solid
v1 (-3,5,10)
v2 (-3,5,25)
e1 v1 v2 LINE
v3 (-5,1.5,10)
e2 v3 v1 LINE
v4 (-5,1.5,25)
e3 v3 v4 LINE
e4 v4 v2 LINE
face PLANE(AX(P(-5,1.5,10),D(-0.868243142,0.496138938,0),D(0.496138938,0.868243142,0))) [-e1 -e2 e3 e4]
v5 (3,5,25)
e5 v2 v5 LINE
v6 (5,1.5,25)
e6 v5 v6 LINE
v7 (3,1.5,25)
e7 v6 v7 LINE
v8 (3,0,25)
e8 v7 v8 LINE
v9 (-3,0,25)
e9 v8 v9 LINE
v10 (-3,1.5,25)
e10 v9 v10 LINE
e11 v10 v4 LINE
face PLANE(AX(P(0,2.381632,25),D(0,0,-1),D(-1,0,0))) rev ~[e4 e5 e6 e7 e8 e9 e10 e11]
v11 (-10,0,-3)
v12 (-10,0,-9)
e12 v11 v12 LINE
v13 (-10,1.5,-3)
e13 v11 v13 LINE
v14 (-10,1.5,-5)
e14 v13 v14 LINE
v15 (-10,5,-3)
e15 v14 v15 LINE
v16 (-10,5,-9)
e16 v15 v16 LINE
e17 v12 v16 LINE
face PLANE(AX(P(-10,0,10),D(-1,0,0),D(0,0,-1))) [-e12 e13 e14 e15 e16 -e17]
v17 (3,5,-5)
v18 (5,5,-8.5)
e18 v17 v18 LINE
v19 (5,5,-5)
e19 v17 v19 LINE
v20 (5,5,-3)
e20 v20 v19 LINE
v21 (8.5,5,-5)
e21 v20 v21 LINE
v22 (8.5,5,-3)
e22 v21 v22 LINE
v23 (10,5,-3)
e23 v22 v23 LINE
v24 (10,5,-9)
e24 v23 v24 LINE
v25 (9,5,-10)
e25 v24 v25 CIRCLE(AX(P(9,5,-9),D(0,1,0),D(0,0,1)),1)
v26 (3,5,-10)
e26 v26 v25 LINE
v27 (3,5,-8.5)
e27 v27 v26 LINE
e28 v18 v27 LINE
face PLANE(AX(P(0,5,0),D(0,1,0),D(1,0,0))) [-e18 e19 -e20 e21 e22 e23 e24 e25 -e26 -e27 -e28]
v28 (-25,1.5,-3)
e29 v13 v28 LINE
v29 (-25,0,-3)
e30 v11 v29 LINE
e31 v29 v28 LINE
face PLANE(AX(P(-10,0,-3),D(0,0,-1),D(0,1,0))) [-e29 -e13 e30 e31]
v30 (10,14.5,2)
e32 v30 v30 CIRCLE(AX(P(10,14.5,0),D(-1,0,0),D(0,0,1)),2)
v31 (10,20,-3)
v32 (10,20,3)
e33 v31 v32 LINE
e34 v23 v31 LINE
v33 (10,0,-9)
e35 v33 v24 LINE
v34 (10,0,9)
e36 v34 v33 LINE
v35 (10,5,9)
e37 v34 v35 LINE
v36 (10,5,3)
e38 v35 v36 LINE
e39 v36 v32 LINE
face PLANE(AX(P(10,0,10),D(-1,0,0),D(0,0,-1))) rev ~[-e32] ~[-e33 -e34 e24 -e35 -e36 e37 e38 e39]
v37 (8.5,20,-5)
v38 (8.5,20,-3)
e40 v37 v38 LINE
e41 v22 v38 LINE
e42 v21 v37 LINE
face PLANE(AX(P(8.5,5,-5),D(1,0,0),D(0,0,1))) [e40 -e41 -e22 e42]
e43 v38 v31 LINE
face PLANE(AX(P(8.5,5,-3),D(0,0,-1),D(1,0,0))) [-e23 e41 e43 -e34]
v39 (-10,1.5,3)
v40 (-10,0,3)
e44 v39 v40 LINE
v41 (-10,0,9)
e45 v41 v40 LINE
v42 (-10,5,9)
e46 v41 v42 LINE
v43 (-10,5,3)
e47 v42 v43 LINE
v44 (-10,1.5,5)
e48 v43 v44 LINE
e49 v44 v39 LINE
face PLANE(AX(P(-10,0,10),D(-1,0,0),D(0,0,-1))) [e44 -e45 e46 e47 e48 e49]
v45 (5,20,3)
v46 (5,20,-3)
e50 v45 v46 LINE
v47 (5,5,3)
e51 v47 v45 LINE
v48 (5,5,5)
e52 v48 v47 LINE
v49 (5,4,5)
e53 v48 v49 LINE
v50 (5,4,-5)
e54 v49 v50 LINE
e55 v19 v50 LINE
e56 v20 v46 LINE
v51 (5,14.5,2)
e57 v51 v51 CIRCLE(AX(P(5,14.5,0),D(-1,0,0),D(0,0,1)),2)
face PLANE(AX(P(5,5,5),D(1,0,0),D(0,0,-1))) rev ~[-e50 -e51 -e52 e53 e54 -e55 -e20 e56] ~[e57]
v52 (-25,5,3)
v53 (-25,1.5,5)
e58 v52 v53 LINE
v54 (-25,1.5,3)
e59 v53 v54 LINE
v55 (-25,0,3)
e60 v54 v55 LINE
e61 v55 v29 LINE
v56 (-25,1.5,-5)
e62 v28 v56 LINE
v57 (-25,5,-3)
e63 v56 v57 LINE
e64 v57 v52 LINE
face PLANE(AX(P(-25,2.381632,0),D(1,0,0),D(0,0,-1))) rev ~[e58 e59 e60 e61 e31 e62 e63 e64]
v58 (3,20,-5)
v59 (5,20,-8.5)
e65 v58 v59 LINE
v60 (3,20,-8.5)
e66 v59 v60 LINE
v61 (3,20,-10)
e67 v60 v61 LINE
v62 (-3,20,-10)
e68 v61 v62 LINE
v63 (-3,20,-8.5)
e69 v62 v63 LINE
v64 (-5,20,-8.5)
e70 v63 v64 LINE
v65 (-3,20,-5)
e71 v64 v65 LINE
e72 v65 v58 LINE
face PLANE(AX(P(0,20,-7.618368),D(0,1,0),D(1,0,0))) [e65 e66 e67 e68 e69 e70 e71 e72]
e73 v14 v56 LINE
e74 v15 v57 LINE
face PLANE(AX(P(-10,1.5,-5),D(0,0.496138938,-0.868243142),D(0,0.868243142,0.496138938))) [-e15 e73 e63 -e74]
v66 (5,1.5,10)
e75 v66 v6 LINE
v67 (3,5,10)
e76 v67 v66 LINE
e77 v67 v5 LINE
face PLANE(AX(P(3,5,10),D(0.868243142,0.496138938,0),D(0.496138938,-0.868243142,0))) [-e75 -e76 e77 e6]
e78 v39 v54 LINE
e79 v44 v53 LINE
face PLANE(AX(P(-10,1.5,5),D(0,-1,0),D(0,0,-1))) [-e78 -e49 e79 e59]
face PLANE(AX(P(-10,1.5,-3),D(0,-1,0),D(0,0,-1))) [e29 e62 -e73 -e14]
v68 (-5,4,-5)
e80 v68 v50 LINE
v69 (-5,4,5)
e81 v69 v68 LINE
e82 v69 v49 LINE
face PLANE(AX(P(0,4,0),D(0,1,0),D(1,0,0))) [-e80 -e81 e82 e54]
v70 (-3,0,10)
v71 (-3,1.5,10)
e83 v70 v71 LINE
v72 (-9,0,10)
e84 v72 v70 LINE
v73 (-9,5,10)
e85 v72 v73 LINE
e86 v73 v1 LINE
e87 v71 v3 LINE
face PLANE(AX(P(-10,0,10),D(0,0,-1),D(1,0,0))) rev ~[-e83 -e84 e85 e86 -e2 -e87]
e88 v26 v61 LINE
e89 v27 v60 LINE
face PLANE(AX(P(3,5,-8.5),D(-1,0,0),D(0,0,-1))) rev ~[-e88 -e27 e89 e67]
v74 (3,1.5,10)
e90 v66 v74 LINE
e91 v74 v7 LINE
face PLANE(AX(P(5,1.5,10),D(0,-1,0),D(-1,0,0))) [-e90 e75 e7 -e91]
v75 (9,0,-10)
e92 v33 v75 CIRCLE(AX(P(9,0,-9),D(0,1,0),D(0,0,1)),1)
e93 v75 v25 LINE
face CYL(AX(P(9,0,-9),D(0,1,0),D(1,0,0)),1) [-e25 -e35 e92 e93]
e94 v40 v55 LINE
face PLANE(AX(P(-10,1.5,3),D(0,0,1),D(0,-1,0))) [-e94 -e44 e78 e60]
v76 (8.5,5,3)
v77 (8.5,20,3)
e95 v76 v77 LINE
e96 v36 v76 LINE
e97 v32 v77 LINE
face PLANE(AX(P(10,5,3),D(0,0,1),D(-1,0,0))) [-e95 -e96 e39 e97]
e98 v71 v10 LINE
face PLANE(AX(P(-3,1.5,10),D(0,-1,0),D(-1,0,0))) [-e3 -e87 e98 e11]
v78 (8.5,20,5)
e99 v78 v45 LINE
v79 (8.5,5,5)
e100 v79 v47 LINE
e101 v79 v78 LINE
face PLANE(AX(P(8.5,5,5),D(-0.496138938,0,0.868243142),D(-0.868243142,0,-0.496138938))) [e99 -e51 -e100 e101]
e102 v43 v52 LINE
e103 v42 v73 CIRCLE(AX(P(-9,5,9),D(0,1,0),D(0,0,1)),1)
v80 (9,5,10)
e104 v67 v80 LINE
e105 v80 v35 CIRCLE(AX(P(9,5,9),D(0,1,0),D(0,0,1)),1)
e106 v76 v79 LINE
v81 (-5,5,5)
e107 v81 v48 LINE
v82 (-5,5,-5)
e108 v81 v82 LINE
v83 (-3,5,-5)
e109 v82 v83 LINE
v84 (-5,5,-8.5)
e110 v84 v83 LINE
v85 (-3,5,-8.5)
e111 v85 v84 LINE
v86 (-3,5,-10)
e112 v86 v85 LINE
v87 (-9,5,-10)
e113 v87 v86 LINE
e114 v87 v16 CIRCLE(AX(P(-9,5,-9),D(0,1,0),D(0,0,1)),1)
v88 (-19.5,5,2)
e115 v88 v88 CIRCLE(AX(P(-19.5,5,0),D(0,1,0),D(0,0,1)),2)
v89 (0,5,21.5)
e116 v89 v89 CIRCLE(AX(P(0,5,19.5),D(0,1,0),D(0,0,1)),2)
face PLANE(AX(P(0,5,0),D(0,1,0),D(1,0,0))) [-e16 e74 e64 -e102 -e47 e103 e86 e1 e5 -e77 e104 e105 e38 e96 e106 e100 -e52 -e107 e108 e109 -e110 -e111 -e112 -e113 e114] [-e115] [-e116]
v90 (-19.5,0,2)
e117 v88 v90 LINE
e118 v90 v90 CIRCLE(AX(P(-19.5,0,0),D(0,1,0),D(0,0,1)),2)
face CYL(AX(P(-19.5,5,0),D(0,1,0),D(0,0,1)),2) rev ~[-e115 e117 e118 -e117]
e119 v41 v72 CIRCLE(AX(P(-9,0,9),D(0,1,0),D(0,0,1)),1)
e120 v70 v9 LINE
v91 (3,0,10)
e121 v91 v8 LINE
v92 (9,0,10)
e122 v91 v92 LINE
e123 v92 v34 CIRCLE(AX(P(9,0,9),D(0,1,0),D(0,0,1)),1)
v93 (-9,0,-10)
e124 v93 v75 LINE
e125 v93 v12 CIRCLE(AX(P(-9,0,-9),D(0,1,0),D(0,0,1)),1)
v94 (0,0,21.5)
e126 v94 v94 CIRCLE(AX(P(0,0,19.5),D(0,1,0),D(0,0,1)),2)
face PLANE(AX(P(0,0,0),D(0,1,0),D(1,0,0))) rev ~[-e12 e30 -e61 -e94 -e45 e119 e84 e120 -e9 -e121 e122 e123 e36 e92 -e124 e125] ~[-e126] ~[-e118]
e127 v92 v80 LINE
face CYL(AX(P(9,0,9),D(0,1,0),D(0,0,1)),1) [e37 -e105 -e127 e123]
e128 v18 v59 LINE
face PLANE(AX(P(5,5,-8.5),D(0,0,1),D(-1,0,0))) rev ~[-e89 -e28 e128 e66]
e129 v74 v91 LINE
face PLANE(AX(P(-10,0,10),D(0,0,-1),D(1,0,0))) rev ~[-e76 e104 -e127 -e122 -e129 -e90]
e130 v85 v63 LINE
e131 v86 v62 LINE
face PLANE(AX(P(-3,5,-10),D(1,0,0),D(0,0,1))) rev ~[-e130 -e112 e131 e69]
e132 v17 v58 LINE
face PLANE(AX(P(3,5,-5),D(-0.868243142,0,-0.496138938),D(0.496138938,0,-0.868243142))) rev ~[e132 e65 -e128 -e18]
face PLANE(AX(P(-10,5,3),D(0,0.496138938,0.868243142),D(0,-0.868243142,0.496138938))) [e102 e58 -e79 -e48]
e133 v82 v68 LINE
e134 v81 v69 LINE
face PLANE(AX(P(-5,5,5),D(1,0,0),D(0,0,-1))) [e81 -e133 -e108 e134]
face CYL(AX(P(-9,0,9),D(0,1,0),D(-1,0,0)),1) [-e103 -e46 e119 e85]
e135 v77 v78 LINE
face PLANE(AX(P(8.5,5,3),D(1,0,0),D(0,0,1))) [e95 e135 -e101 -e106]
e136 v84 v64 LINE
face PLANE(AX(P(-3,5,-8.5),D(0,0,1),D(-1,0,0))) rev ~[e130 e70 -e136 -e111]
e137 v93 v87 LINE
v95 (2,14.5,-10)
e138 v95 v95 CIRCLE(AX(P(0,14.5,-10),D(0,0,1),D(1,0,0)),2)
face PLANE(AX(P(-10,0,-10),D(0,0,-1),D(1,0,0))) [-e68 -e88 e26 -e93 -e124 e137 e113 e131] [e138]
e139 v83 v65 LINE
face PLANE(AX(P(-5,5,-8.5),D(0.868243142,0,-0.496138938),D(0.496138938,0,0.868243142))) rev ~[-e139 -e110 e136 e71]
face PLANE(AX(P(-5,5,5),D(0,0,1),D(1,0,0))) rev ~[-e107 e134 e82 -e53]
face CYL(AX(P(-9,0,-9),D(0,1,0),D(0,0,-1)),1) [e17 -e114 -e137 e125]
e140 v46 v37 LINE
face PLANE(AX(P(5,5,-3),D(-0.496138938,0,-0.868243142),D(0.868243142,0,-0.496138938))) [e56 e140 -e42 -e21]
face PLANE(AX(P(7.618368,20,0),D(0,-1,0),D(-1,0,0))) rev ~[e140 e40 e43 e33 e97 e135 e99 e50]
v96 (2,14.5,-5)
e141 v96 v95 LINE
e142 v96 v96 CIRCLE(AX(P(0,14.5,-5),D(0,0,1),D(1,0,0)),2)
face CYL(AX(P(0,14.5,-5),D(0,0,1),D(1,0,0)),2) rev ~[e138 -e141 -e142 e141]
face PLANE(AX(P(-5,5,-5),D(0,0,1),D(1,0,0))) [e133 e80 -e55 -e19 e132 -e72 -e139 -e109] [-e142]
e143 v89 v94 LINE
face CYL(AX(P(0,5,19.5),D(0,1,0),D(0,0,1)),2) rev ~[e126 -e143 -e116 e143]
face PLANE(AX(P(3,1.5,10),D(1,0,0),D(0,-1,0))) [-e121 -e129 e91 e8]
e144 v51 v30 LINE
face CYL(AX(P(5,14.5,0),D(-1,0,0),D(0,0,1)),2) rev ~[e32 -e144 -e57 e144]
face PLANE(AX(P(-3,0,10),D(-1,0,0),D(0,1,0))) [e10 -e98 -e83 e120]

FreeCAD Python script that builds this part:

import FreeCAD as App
import Part
import Sketcher

V = App.Vector


def edges_at(feature, points):
    """Names of the edges that pass closest to the given points."""
    edges = feature.Shape.Edges
    near = lambda p: min(range(len(edges)), key=lambda i: edges[i].distToShape(Part.Vertex(*p))[0])
    return sorted({f"Edge{near(p) + 1}" for p in points})

doc = App.newDocument("Part")
body = doc.addObject("PartDesign::Body", "Body")

# Sketch on XZ plane
sketch1 = body.newObject("Sketcher::SketchObject", "Sketch")
sketch1.AttachmentSupport = (doc.getObject("XZ_Plane"), [""])
sketch1.MapMode = "FlatFace"
sketch1.addGeometry([
    Part.LineSegment(V(-10, -10, 0), V(-10, 10, 0)),
    Part.LineSegment(V(-10, 10, 0), V(10, 10, 0)),
    Part.LineSegment(V(10, 10, 0), V(10, -10, 0)),
    Part.LineSegment(V(10, -10, 0), V(-10, -10, 0)),
], False)
sketch1.addConstraint([
    Sketcher.Constraint("Coincident", 0, 2, 1, 1),
    Sketcher.Constraint("Coincident", 1, 2, 2, 1),
    Sketcher.Constraint("Coincident", 2, 2, 3, 1),
    Sketcher.Constraint("Coincident", 3, 2, 0, 1),
    Sketcher.Constraint("Vertical", 0),
    Sketcher.Constraint("Horizontal", 1),
    Sketcher.Constraint("Vertical", 2),
    Sketcher.Constraint("Horizontal", 3),
    Sketcher.Constraint("Symmetric", 0, 2, 2, 2, -1, 1),
    Sketcher.Constraint("Equal", 3, 0),
    Sketcher.Constraint("DistanceX", 1, 1, 1, 2, 20.0),
])
pad1 = body.newObject("PartDesign::Pad", "Pad")
pad1.Profile = sketch1
pad1.Length = 5
pad1.Reversed = True

# Sketch on XY plane
sketch2 = body.newObject("Sketcher::SketchObject", "Sketch001")
sketch2.AttachmentSupport = (doc.getObject("XY_Plane"), [""])
sketch2.MapMode = "FlatFace"
sketch2.AttachmentOffset = App.Placement(V(0, 0, 10), App.Rotation())
sketch2.addGeometry([
    Part.LineSegment(V(3, 5, 0), V(-3, 5, 0)),  # 0
    Part.LineSegment(V(-3, 5, 0), V(-5, 1.5, 0)),  # 1
    Part.LineSegment(V(-5, 1.5, 0), V(-3, 1.5, 0)),  # 2
    Part.LineSegment(V(-3, 1.5, 0), V(-3, 0, 0)),  # 3
    Part.LineSegment(V(-3, 0, 0), V(3, 0, 0)),  # 4
    Part.LineSegment(V(3, 0, 0), V(3, 1.5, 0)),  # 5
    Part.LineSegment(V(3, 1.5, 0), V(5, 1.5, 0)),  # 6
    Part.LineSegment(V(5, 1.5, 0), V(3, 5, 0)),  # 7
], False)
sketch2.addConstraint([
    Sketcher.Constraint("Coincident", 0, 2, 1, 1),
    Sketcher.Constraint("Coincident", 1, 2, 2, 1),
    Sketcher.Constraint("Coincident", 2, 2, 3, 1),
    Sketcher.Constraint("Coincident", 3, 2, 4, 1),
    Sketcher.Constraint("Coincident", 4, 2, 5, 1),
    Sketcher.Constraint("Coincident", 5, 2, 6, 1),
    Sketcher.Constraint("Coincident", 6, 2, 7, 1),
    Sketcher.Constraint("Coincident", 7, 2, 0, 1),
    Sketcher.Constraint("Horizontal", 0),
    Sketcher.Constraint("Horizontal", 2),
    Sketcher.Constraint("Vertical", 3),
    Sketcher.Constraint("Horizontal", 4),
    Sketcher.Constraint("Vertical", 5),
    Sketcher.Constraint("Horizontal", 6),
    Sketcher.Constraint("Symmetric", 3, 2, 4, 2, -1, 1),
    Sketcher.Constraint("Symmetric", 1, 2, 6, 2, -2),
    Sketcher.Constraint("Vertical", 0, 2, 2, 2),
    Sketcher.Constraint("Vertical", 5, 2, 7, 2),
    Sketcher.Constraint("DistanceX", 0, 2, 0, 1, 6.0),
    Sketcher.Constraint("DistanceX", 2, 1, 2, 2, 2.0),
    Sketcher.Constraint("DistanceY", 3, 2, 3, 1, 1.5),
    Sketcher.Constraint("DistanceY", -1, 1, 0, 2, 5.0),
])
pad2 = body.newObject("PartDesign::Pad", "Pad001")
pad2.Profile = sketch2
pad2.Length = 15

# Sketch on YZ plane
sketch3 = body.newObject("Sketcher::SketchObject", "Sketch002")
sketch3.AttachmentSupport = (doc.getObject("YZ_Plane"), [""])
sketch3.MapMode = "FlatFace"
sketch3.AttachmentOffset = App.Placement(V(0, 0, -10), App.Rotation())
sketch3.addGeometry([
    Part.LineSegment(V(5, 3, 0), V(5, -3, 0)),  # 0
    Part.LineSegment(V(5, -3, 0), V(1.5, -5, 0)),  # 1
    Part.LineSegment(V(1.5, -5, 0), V(1.5, -3, 0)),  # 2
    Part.LineSegment(V(1.5, -3, 0), V(0, -3, 0)),  # 3
    Part.LineSegment(V(0, -3, 0), V(0, 3, 0)),  # 4
    Part.LineSegment(V(0, 3, 0), V(1.5, 3, 0)),  # 5
    Part.LineSegment(V(1.5, 3, 0), V(1.5, 5, 0)),  # 6
    Part.LineSegment(V(1.5, 5, 0), V(5, 3, 0)),  # 7
], False)
sketch3.addConstraint([
    Sketcher.Constraint("Coincident", 0, 2, 1, 1),
    Sketcher.Constraint("Coincident", 1, 2, 2, 1),
    Sketcher.Constraint("Coincident", 2, 2, 3, 1),
    Sketcher.Constraint("Coincident", 3, 2, 4, 1),
    Sketcher.Constraint("Coincident", 4, 2, 5, 1),
    Sketcher.Constraint("Coincident", 5, 2, 6, 1),
    Sketcher.Constraint("Coincident", 6, 2, 7, 1),
    Sketcher.Constraint("Coincident", 7, 2, 0, 1),
    Sketcher.Constraint("Vertical", 0),
    Sketcher.Constraint("Vertical", 2),
    Sketcher.Constraint("Horizontal", 3),
    Sketcher.Constraint("Vertical", 4),
    Sketcher.Constraint("Horizontal", 5),
    Sketcher.Constraint("Vertical", 6),
    Sketcher.Constraint("Symmetric", 3, 2, 4, 2, -1, 1),
    Sketcher.Constraint("Symmetric", 1, 2, 6, 2, -1),
    Sketcher.Constraint("Horizontal", 0, 2, 2, 2),
    Sketcher.Constraint("Horizontal", 5, 2, 7, 2),
    Sketcher.Constraint("DistanceY", 0, 2, 0, 1, 6.0),
    Sketcher.Constraint("DistanceY", 2, 1, 2, 2, 2.0),
    Sketcher.Constraint("DistanceX", 3, 2, 3, 1, 1.5),
    Sketcher.Constraint("DistanceX", -1, 1, 0, 2, 5.0),
])
pad3 = body.newObject("PartDesign::Pad", "Pad002")
pad3.Profile = sketch3
pad3.Length = 15
pad3.Reversed = True

# Sketch on XZ plane
sketch4 = body.newObject("Sketcher::SketchObject", "Sketch003")
sketch4.AttachmentSupport = (doc.getObject("XZ_Plane"), [""])
sketch4.MapMode = "FlatFace"
sketch4.AttachmentOffset = App.Placement(V(0, 0, -5), App.Rotation())
sketch4.addGeometry([
    Part.LineSegment(V(-3, -10, 0), V(-3, -8.5, 0)),  # 0
    Part.LineSegment(V(-3, -8.5, 0), V(-5, -8.5, 0)),  # 1
    Part.LineSegment(V(-5, -8.5, 0), V(-3, -5, 0)),  # 2
    Part.LineSegment(V(-3, -5, 0), V(3, -5, 0)),  # 3
    Part.LineSegment(V(3, -5, 0), V(5, -8.5, 0)),  # 4
    Part.LineSegment(V(5, -8.5, 0), V(3, -8.5, 0)),  # 5
    Part.LineSegment(V(3, -8.5, 0), V(3, -10, 0)),  # 6
    Part.LineSegment(V(3, -10, 0), V(-3, -10, 0)),  # 7
    Part.LineSegment(V(5, 3, 0), V(8.5, 5, 0)),  # 8
    Part.LineSegment(V(8.5, 5, 0), V(8.5, 3, 0)),  # 9
    Part.LineSegment(V(8.5, 3, 0), V(10, 3, 0)),  # 10
    Part.LineSegment(V(10, 3, 0), V(10, -3, 0)),  # 11
    Part.LineSegment(V(10, -3, 0), V(8.5, -3, 0)),  # 12
    Part.LineSegment(V(8.5, -3, 0), V(8.5, -5, 0)),  # 13
    Part.LineSegment(V(8.5, -5, 0), V(5, -3, 0)),  # 14
    Part.LineSegment(V(5, -3, 0), V(5, 3, 0)),  # 15
], False)
sketch4.addConstraint([
    Sketcher.Constraint("Coincident", 0, 2, 1, 1),
    Sketcher.Constraint("Coincident", 1, 2, 2, 1),
    Sketcher.Constraint("Coincident", 2, 2, 3, 1),
    Sketcher.Constraint("Coincident", 3, 2, 4, 1),
    Sketcher.Constraint("Coincident", 4, 2, 5, 1),
    Sketcher.Constraint("Coincident", 5, 2, 6, 1),
    Sketcher.Constraint("Coincident", 6, 2, 7, 1),
    Sketcher.Constraint("Coincident", 7, 2, 0, 1),
    Sketcher.Constraint("Coincident", 8, 2, 9, 1),
    Sketcher.Constraint("Coincident", 9, 2, 10, 1),
    Sketcher.Constraint("Coincident", 10, 2, 11, 1),
    Sketcher.Constraint("Coincident", 11, 2, 12, 1),
    Sketcher.Constraint("Coincident", 12, 2, 13, 1),
    Sketcher.Constraint("Coincident", 13, 2, 14, 1),
    Sketcher.Constraint("Coincident", 14, 2, 15, 1),
    Sketcher.Constraint("Coincident", 15, 2, 8, 1),
    Sketcher.Constraint("Vertical", 0),
    Sketcher.Constraint("Horizontal", 1),
    Sketcher.Constraint("Horizontal", 3),
    Sketcher.Constraint("Horizontal", 5),
    Sketcher.Constraint("Vertical", 6),
    Sketcher.Constraint("Horizontal", 7),
    Sketcher.Constraint("Vertical", 9),
    Sketcher.Constraint("Horizontal", 10),
    Sketcher.Constraint("Vertical", 11),
    Sketcher.Constraint("Horizontal", 12),
    Sketcher.Constraint("Vertical", 13),
    Sketcher.Constraint("Vertical", 15),
    Sketcher.Constraint("Symmetric", 1, 2, 4, 2, -2),
    Sketcher.Constraint("Symmetric", 9, 2, 12, 2, -1),
    Sketcher.Constraint("Perpendicular", 4, 8),
    Sketcher.Constraint("Perpendicular", 2, 14),
    Sketcher.Constraint("Horizontal", 3, 2, 13, 2),
    Sketcher.Constraint("Horizontal", 12, 2, 14, 2),
    Sketcher.Constraint("Horizontal", 10, 2, 15, 2),
    Sketcher.Constraint("Vertical", 0, 2, 2, 2),
    Sketcher.Constraint("Vertical", 3, 2, 5, 2),
    Sketcher.Constraint("Vertical", 4, 2, 14, 2),
    Sketcher.Constraint("Equal", 1, 5),
    Sketcher.Constraint("Equal", 12, 0),
    Sketcher.Constraint("Equal", 5, 9),
    Sketcher.Constraint("Equal", 7, 11),
    Sketcher.Constraint("DistanceX", 1, 2, 1, 1, 2.0),
    Sketcher.Constraint("DistanceX", 3, 1, 3, 2, 6.0),
    Sketcher.Constraint("DistanceX", 10, 1, 10, 2, 1.5),
    Sketcher.Constraint("DistanceY", 6, 2, -1, 1, 10.0),
])
pad4 = body.newObject("PartDesign::Pad", "Pad003")
pad4.Profile = sketch4
pad4.Length = 15
pad4.Reversed = True
doc.recompute()

fillet = body.newObject("PartDesign::Fillet", "Fillet")
fillet.Base = (pad4, edges_at(pad4, [
    (10, 2.5, 10),
    (-10, 2.5, 10),
    (-10, 2.5, -10),
    (10, 2.5, -10),
]))
fillet.Radius = 1

# Sketch on XZ plane
sketch5 = body.newObject("Sketcher::SketchObject", "Sketch004")
sketch5.AttachmentSupport = (doc.getObject("XZ_Plane"), [""])
sketch5.MapMode = "FlatFace"
sketch5.AttachmentOffset = App.Placement(V(0, 0, -5), App.Rotation())
sketch5.addGeometry([
    Part.LineSegment(V(-5, -5, 0), V(-5, 5, 0)),
    Part.LineSegment(V(-5, 5, 0), V(5, 5, 0)),
    Part.LineSegment(V(5, 5, 0), V(5, -5, 0)),
    Part.LineSegment(V(5, -5, 0), V(-5, -5, 0)),
], False)
sketch5.addConstraint([
    Sketcher.Constraint("Coincident", 0, 2, 1, 1),
    Sketcher.Constraint("Coincident", 1, 2, 2, 1),
    Sketcher.Constraint("Coincident", 2, 2, 3, 1),
    Sketcher.Constraint("Coincident", 3, 2, 0, 1),
    Sketcher.Constraint("Vertical", 0),
    Sketcher.Constraint("Horizontal", 1),
    Sketcher.Constraint("Vertical", 2),
    Sketcher.Constraint("Horizontal", 3),
    Sketcher.Constraint("Symmetric", 0, 2, 2, 2, -1, 1),
    Sketcher.Constraint("Equal", 3, 0),
    Sketcher.Constraint("DistanceX", 1, 1, 1, 2, 10.0),
])
pocket1 = body.newObject("PartDesign::Pocket", "Pocket")
pocket1.Profile = sketch5
pocket1.Length = 1
pocket1.Reversed = True

# Sketch on XZ plane
sketch6 = body.newObject("Sketcher::SketchObject", "Sketch005")
sketch6.AttachmentSupport = (doc.getObject("XZ_Plane"), [""])
sketch6.MapMode = "FlatFace"
sketch6.AttachmentOffset = App.Placement(V(0, 0, -5), App.Rotation())
sketch6.addGeometry(Part.Circle(V(0, 19.5, 0), V(0, 0, 1), 2), False)
sketch6.addConstraint([
    Sketcher.Constraint("PointOnObject", 0, 3, -2),
    Sketcher.Constraint("Diameter", 0, 4.0),
    Sketcher.Constraint("DistanceY", -1, 1, 0, 3, 19.5),
])
pocket2 = body.newObject("PartDesign::Pocket", "Pocket001")
pocket2.Profile = sketch6
pocket2.Type = "UpToFirst"
pocket2.Reversed = True

# Sketch on XZ plane
sketch7 = body.newObject("Sketcher::SketchObject", "Sketch006")
sketch7.AttachmentSupport = (doc.getObject("XZ_Plane"), [""])
sketch7.MapMode = "FlatFace"
sketch7.AttachmentOffset = App.Placement(V(0, 0, -5), App.Rotation())
sketch7.addGeometry(Part.Circle(V(-19.5, 0, 0), V(0, 0, 1), 2), False)
sketch7.addConstraint([
    Sketcher.Constraint("PointOnObject", 0, 3, -1),
    Sketcher.Constraint("Diameter", 0, 4.0),
    Sketcher.Constraint("DistanceX", 0, 3, -1, 1, 19.5),
])
pocket3 = body.newObject("PartDesign::Pocket", "Pocket002")
pocket3.Profile = sketch7
pocket3.Type = "UpToFirst"
pocket3.Reversed = True

# Sketch on YZ plane
sketch8 = body.newObject("Sketcher::SketchObject", "Sketch007")
sketch8.AttachmentSupport = (doc.getObject("YZ_Plane"), [""])
sketch8.MapMode = "FlatFace"
sketch8.AttachmentOffset = App.Placement(V(0, 0, 5), App.Rotation())
sketch8.addGeometry(Part.Circle(V(14.5, 0, 0), V(0, 0, 1), 2), False)
sketch8.addConstraint([
    Sketcher.Constraint("PointOnObject", 0, 3, -1),
    Sketcher.Constraint("Diameter", 0, 4.0),
    Sketcher.Constraint("DistanceX", -1, 1, 0, 3, 14.5),
])
pocket4 = body.newObject("PartDesign::Pocket", "Pocket003")
pocket4.Profile = sketch8
pocket4.Type = "UpToFirst"
pocket4.Reversed = True

# Sketch on XY plane
sketch9 = body.newObject("Sketcher::SketchObject", "Sketch008")
sketch9.AttachmentSupport = (doc.getObject("XY_Plane"), [""])
sketch9.MapMode = "FlatFace"
sketch9.AttachmentOffset = App.Placement(V(0, 0, -5), App.Rotation())
sketch9.addGeometry(Part.Circle(V(0, 14.5, 0), V(0, 0, 1), 2), False)
sketch9.addConstraint([
    Sketcher.Constraint("PointOnObject", 0, 3, -2),
    Sketcher.Constraint("Diameter", 0, 4.0),
    Sketcher.Constraint("DistanceY", -1, 1, 0, 3, 14.5),
])
pocket5 = body.newObject("PartDesign::Pocket", "Pocket004")
pocket5.Profile = sketch9
pocket5.Type = "UpToFirst"

doc.recompute()
